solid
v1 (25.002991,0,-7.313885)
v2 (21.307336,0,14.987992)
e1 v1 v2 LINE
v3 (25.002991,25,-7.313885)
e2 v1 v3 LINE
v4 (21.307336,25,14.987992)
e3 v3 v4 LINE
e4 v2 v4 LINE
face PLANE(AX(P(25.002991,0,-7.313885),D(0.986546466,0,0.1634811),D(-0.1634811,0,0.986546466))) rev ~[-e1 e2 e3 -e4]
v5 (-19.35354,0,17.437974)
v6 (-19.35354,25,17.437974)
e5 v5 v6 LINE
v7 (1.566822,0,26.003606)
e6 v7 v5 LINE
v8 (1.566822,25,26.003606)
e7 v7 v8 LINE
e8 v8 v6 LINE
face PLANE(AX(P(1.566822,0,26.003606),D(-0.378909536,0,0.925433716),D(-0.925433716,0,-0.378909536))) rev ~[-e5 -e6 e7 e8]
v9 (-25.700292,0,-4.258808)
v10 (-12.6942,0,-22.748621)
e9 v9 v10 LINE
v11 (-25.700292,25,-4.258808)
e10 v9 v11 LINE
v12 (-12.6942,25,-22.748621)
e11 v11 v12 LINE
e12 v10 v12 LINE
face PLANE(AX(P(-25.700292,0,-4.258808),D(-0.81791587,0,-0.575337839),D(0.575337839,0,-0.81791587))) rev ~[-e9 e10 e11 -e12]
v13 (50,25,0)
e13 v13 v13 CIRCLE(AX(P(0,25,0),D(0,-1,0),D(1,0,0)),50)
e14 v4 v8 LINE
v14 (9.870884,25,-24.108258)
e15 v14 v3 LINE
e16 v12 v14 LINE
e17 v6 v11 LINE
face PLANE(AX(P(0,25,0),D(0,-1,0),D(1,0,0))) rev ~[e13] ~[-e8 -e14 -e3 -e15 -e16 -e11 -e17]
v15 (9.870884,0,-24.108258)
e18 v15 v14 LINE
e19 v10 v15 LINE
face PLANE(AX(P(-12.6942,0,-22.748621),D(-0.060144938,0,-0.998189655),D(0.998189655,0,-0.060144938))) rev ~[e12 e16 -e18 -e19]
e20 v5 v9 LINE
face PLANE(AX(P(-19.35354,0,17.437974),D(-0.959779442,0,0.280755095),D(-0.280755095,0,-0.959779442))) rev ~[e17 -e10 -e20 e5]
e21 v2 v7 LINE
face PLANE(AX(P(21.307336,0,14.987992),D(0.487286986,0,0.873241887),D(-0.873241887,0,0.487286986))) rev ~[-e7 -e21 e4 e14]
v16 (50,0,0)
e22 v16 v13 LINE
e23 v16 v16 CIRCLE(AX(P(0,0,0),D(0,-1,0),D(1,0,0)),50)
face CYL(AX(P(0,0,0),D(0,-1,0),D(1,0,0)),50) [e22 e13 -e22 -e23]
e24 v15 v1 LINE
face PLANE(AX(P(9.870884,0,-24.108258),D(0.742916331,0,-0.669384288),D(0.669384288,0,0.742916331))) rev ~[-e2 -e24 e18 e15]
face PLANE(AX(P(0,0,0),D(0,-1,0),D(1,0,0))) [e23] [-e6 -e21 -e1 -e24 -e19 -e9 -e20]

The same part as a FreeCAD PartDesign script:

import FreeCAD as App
import Part
import Sketcher
Q = App.Units.Quantity


def add_polygon(sketch, points):
    """Adds a closed chain of lines whose ends are joined by coincident constraints."""
    first, n = sketch.GeometryCount, len(points)
    for a, b in zip(points, points[1:] + points[:1]):
        sketch.addGeometry(Part.LineSegment(App.Vector(*a, 0), App.Vector(*b, 0)), False)
    for i in range(n):
        sketch.addConstraint(Sketcher.Constraint("Coincident", first + i, 2, first + (i + 1) % n, 1))

doc = App.newDocument("Part")
body = doc.addObject("PartDesign::Body", "Body")

# Sketch on XZ plane
sketch1 = doc.addObject("Sketcher::SketchObject", "Sketch")
body.addObject(sketch1)
sketch1.AttachmentSupport = (doc.XZ_Plane, [""])
sketch1.MapMode = "FlatFace"
sketch1.addGeometry(Part.Circle(App.Vector(0, 0, 0), App.Vector(0, 0, 1), 50), False)
sketch1.addConstraint([
    Sketcher.Constraint("Coincident", 0, 3, -1, 1),
    Sketcher.Constraint("Diameter", 0, Q("100 mm")),
])
pad1 = doc.addObject("PartDesign::Pad", "Pad")
body.addObject(pad1)
pad1.Profile = sketch1
pad1.Length = 25
pad1.Reversed = True

# Sketch on XZ plane
sketch2 = doc.addObject("Sketcher::SketchObject", "Sketch001")
body.addObject(sketch2)
sketch2.AttachmentSupport = (doc.XZ_Plane, [""])
sketch2.MapMode = "FlatFace"
add_polygon(sketch2, [(-25.700292, -4.258808), (-12.6942, -22.748621), (9.870884, -24.108258), (25.002991, -7.313885), (21.307336, 14.987992), (1.566822, 26.003606), (-19.35354, 17.437974)])  # lines 0-6
sketch2.addConstraint([
    Sketcher.Constraint("Equal", 0, 1),
    Sketcher.Constraint("Equal", 1, 2),
    Sketcher.Constraint("Equal", 2, 3),
    Sketcher.Constraint("Equal", 3, 4),
    Sketcher.Constraint("Equal", 4, 5),
    Sketcher.Constraint("Equal", 5, 6),
    Sketcher.Constraint("DistanceX", 0, 2, -1, 1, Q("12.6942 mm")),
    Sketcher.Constraint("DistanceY", 6, 2, 3, 2, Q("19.2468 mm")),
    Sketcher.Constraint("Distance", 0, Q("22.606008 mm")),
    Sketcher.Constraint("DistanceY", 0, 2, -1, 1, Q("22.748621 mm")),
    Sketcher.Constraint("DistanceX", -1, 1, 2, 2, Q("25.002991 mm")),
    Sketcher.Constraint("DistanceX", -1, 1, 4, 2, Q("1.566822 mm")),
    Sketcher.Constraint("DistanceX", 5, 2, -1, 1, Q("19.35354 mm")),
    Sketcher.Constraint("DistanceX", 1, 2, 3, 2, Q("11.436452 mm")),
])
pocket1 = doc.addObject("PartDesign::Pocket", "Pocket")
body.addObject(pocket1)
pocket1.Profile = sketch2
pocket1.Type = "ThroughAll"

doc.recompute()
